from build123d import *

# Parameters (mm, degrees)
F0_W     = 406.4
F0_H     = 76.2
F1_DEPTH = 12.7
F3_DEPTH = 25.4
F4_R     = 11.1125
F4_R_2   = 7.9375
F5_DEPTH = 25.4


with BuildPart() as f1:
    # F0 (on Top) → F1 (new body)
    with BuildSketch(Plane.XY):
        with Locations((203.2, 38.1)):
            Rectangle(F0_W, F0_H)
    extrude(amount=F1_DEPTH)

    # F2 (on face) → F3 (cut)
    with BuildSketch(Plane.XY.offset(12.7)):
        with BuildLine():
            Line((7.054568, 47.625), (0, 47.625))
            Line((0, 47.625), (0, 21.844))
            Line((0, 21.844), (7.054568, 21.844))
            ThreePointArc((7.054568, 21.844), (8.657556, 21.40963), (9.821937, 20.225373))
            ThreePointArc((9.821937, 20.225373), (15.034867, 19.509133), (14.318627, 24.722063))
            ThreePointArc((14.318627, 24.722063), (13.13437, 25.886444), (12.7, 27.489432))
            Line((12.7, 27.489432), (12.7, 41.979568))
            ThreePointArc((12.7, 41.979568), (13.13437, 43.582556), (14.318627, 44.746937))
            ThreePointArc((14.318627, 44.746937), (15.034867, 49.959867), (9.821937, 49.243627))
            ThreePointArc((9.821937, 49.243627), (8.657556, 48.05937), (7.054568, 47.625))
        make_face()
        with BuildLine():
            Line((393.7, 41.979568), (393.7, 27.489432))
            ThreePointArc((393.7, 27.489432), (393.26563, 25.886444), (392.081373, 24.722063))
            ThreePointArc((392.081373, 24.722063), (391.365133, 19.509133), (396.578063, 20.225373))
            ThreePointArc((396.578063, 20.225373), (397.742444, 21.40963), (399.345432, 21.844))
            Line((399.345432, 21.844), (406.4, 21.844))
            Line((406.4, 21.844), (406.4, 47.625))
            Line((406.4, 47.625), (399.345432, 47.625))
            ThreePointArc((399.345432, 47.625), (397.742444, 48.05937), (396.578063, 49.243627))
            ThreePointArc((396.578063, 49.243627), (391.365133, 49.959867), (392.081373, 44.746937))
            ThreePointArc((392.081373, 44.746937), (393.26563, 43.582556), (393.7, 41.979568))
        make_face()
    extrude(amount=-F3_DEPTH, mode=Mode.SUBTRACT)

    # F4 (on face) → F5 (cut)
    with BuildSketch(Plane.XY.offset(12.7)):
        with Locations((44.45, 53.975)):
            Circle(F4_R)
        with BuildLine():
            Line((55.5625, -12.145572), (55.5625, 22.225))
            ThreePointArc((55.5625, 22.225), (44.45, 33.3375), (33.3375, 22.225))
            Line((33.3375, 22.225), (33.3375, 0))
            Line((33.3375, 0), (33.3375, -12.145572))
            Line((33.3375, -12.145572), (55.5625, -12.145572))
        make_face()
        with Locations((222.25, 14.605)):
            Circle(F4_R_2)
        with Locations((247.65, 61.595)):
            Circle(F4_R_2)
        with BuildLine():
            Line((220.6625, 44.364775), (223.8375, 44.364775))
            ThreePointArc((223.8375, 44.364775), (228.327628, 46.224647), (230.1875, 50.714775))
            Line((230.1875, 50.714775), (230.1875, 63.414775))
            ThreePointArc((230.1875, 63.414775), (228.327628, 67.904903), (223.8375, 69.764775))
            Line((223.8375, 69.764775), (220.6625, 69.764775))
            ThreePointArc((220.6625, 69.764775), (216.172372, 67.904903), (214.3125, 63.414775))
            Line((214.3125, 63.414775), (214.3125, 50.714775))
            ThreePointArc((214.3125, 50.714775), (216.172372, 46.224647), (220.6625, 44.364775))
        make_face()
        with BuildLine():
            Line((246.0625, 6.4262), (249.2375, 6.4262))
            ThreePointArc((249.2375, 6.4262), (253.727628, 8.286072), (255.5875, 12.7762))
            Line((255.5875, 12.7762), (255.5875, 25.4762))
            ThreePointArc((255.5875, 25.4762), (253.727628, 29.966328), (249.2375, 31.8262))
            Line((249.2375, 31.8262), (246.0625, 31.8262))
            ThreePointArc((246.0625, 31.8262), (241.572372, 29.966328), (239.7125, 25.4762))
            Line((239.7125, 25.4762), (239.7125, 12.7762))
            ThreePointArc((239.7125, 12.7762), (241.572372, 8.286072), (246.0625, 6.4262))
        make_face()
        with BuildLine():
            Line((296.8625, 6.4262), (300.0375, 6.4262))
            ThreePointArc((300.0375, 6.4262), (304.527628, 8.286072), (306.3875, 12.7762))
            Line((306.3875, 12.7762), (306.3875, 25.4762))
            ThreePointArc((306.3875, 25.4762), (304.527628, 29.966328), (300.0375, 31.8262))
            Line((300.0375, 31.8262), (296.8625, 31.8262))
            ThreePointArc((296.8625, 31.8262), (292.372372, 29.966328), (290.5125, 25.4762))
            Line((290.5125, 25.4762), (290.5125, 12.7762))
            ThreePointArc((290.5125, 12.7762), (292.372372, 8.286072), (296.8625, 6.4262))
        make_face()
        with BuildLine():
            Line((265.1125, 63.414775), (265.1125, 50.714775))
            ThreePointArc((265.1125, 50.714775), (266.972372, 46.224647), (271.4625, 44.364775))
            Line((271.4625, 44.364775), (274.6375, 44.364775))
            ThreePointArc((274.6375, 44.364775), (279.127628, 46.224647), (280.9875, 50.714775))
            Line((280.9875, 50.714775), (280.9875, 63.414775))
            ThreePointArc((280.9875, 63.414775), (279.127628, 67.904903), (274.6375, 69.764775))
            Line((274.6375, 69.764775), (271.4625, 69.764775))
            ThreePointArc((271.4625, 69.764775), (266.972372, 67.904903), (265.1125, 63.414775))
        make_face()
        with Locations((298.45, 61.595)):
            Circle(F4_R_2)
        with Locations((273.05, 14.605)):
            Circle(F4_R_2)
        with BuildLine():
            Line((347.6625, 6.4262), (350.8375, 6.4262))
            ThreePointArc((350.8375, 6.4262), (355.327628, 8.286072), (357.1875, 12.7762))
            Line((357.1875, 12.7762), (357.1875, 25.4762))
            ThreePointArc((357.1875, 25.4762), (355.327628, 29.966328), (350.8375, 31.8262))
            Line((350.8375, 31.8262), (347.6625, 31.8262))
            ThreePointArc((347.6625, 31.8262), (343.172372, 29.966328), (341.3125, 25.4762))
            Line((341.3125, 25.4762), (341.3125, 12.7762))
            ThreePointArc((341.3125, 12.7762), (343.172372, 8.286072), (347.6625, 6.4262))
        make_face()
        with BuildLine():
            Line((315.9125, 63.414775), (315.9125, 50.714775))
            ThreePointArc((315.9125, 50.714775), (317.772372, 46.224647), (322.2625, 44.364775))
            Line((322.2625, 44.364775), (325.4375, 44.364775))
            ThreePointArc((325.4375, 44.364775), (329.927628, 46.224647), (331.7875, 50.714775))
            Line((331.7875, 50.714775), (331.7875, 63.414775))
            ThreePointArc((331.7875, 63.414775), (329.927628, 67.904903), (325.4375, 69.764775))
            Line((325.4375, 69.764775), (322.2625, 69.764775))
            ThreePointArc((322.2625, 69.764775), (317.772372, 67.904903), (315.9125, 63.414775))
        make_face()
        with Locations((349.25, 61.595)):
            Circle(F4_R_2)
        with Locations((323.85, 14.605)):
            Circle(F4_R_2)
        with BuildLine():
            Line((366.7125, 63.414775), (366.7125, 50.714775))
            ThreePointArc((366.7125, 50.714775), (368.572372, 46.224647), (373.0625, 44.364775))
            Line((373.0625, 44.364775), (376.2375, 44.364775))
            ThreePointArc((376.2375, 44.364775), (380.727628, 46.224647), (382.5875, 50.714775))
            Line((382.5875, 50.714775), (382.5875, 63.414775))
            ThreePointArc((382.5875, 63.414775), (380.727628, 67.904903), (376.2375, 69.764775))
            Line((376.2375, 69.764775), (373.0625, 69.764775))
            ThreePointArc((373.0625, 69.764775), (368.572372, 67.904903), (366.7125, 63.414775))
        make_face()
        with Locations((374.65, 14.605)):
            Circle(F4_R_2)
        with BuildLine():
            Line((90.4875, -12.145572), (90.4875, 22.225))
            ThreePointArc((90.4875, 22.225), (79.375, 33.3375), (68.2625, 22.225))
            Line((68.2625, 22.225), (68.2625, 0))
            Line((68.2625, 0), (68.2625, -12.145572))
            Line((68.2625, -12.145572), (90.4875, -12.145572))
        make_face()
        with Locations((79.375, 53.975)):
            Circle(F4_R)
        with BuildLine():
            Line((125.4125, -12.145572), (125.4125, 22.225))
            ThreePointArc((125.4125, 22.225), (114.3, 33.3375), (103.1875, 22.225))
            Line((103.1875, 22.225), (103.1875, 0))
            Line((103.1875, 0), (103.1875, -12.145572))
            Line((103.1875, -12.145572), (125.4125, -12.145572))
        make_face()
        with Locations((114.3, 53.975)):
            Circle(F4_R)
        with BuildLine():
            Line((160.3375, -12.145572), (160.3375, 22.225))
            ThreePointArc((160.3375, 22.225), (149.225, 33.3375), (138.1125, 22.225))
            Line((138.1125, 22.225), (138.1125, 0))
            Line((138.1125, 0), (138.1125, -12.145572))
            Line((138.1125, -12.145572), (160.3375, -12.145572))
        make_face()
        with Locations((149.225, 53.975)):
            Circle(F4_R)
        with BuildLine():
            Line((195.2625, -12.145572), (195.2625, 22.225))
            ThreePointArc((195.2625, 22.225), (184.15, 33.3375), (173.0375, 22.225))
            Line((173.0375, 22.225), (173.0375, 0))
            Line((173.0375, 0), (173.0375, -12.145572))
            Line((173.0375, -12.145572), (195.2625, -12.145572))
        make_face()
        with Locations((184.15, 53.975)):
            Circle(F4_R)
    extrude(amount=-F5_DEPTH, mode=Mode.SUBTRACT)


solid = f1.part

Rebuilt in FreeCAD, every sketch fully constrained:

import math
import FreeCAD as App
import Part
import Sketcher
from FreeCAD import Vector
Q = App.Units.Quantity

doc = App.newDocument("Part")
body = doc.addObject("PartDesign::Body", "Body")

sketch1 = doc.addObject("Sketcher::SketchObject", "Sketch")
body.addObject(sketch1)
sketch1.AttachmentSupport = (doc.XY_Plane, [""])
sketch1.MapMode = "FlatFace"
sketch1.addGeometry([
    Part.LineSegment(Vector(0, 76, 0), Vector(0, 0, 0)),
    Part.LineSegment(Vector(0, 0, 0), Vector(406, 0, 0)),
    Part.LineSegment(Vector(406, 0, 0), Vector(406, 76, 0)),
    Part.LineSegment(Vector(406, 76, 0), Vector(0, 76, 0)),
], False)
sketch1.addConstraint([
    Sketcher.Constraint("Coincident", 0, 2, 1, 1),
    Sketcher.Constraint("Coincident", 1, 2, 2, 1),
    Sketcher.Constraint("Coincident", 2, 2, 3, 1),
    Sketcher.Constraint("Coincident", 3, 2, 0, 1),
    Sketcher.Constraint("Vertical", 0),
    Sketcher.Constraint("Horizontal", 1),
    Sketcher.Constraint("Vertical", 2),
    Sketcher.Constraint("Horizontal", 3),
    Sketcher.Constraint("Coincident", 0, 2, -1, 1),
    Sketcher.Constraint("DistanceX", 1, 1, 1, 2, Q("16 in")),
    Sketcher.Constraint("DistanceY", 0, 2, 0, 1, Q("3 in")),
])
pad1 = doc.addObject("PartDesign::Pad", "Pad")
body.addObject(pad1)
pad1.Profile = sketch1
pad1.Length = Q("0.5 in")

sketch2 = doc.addObject("Sketcher::SketchObject", "Sketch001")
body.addObject(sketch2)
sketch2.AttachmentSupport = (doc.XY_Plane, [""])
sketch2.MapMode = "FlatFace"
sketch2.AttachmentOffset = App.Placement(Vector(0, 0, 0.5 * 25.4), App.Rotation())
sketch2.addGeometry([
    Part.LineSegment(Vector(7.1, 47.6, 0), Vector(0, 47.6, 0)),
    Part.LineSegment(Vector(0, 47.6, 0), Vector(0, 21.8, 0)),
    Part.LineSegment(Vector(0, 21.8, 0), Vector(7.1, 21.8, 0)),
    Part.ArcOfCircle(Part.Circle(Vector(7.1, 18.7, 0), Vector(0, 0, 1), 3.2), math.radians(29), math.radians(90)),
    Part.ArcOfCircle(Part.Circle(Vector(12.7, 21.8, 0), Vector(0, 0, 1), 3.3), math.radians(-151), math.radians(61)),
    Part.ArcOfCircle(Part.Circle(Vector(15.9, 27.5, 0), Vector(0, 0, 1), 3.2), math.radians(-180), math.radians(-119)),
    Part.LineSegment(Vector(12.7, 27.5, 0), Vector(12.7, 42, 0)),
    Part.ArcOfCircle(Part.Circle(Vector(15.9, 42, 0), Vector(0, 0, 1), 3.2), math.radians(119), math.radians(180)),
    Part.ArcOfCircle(Part.Circle(Vector(12.7, 47.6, 0), Vector(0, 0, 1), 3.3), math.radians(-61), math.radians(151)),
    Part.ArcOfCircle(Part.Circle(Vector(7.1, 50.8, 0), Vector(0, 0, 1), 3.2), math.radians(-90), math.radians(-29)),
    Part.LineSegment(Vector(393.7, 42, 0), Vector(393.7, 27.5, 0)),
    Part.ArcOfCircle(Part.Circle(Vector(390.5, 27.5, 0), Vector(0, 0, 1), 3.2), math.radians(-61), math.radians(0)),
    Part.ArcOfCircle(Part.Circle(Vector(393.7, 21.8, 0), Vector(0, 0, 1), 3.3), math.radians(119), math.radians(331)),
    Part.ArcOfCircle(Part.Circle(Vector(399.3, 18.7, 0), Vector(0, 0, 1), 3.2), math.radians(90), math.radians(151)),
    Part.LineSegment(Vector(399.3, 21.8, 0), Vector(406.4, 21.8, 0)),
    Part.LineSegment(Vector(406.4, 21.8, 0), Vector(406.4, 47.6, 0)),
    Part.LineSegment(Vector(406.4, 47.6, 0), Vector(399.3, 47.6, 0)),
    Part.ArcOfCircle(Part.Circle(Vector(399.3, 50.8, 0), Vector(0, 0, 1), 3.2), math.radians(-151), math.radians(-90)),
    Part.ArcOfCircle(Part.Circle(Vector(393.7, 47.6, 0), Vector(0, 0, 1), 3.3), math.radians(29), math.radians(241)),
    Part.ArcOfCircle(Part.Circle(Vector(390.5, 42, 0), Vector(0, 0, 1), 3.2), math.radians(0), math.radians(61)),
], False)
sketch2.addConstraint([
    Sketcher.Constraint("Coincident", 0, 2, 1, 1),
    Sketcher.Constraint("Coincident", 1, 2, 2, 1),
    Sketcher.Constraint("Tangent", 2, 2, 3, 2),
    Sketcher.Constraint("Tangent", 3, 1, 4, 1),
    Sketcher.Constraint("Tangent", 4, 2, 5, 2),
    Sketcher.Constraint("Tangent", 5, 1, 6, 1),
    Sketcher.Constraint("Tangent", 6, 2, 7, 2),
    Sketcher.Constraint("Tangent", 7, 1, 8, 1),
    Sketcher.Constraint("Tangent", 8, 2, 9, 2),
    Sketcher.Constraint("Tangent", 9, 1, 0, 1),
    Sketcher.Constraint("Tangent", 10, 2, 11, 2),
    Sketcher.Constraint("Tangent", 11, 1, 12, 1),
    Sketcher.Constraint("Tangent", 12, 2, 13, 2),
    Sketcher.Constraint("Tangent", 13, 1, 14, 1),
    Sketcher.Constraint("Coincident", 14, 2, 15, 1),
    Sketcher.Constraint("Coincident", 15, 2, 16, 1),
    Sketcher.Constraint("Tangent", 16, 2, 17, 2),
    Sketcher.Constraint("Tangent", 17, 1, 18, 1),
    Sketcher.Constraint("Tangent", 18, 2, 19, 2),
    Sketcher.Constraint("Tangent", 19, 1, 10, 1),
    Sketcher.Constraint("Horizontal", 0),
    Sketcher.Constraint("Vertical", 1),
    Sketcher.Constraint("Horizontal", 2),
    Sketcher.Constraint("Vertical", 6),
    Sketcher.Constraint("Vertical", 10),
    Sketcher.Constraint("Horizontal", 14),
    Sketcher.Constraint("Vertical", 15),
    Sketcher.Constraint("Horizontal", 16),
    Sketcher.Constraint("Equal", 3, 5),
    Sketcher.Constraint("Equal", 5, 7),
    Sketcher.Constraint("Equal", 4, 8),
    Sketcher.Constraint("Equal", 7, 9),
    Sketcher.Constraint("Equal", 9, 11),
    Sketcher.Constraint("Equal", 8, 12),
    Sketcher.Constraint("Equal", 11, 13),
    Sketcher.Constraint("Equal", 13, 17),
    Sketcher.Constraint("Equal", 12, 18),
    Sketcher.Constraint("Equal", 17, 19),
    Sketcher.Constraint("PointOnObject", 0, 2, -2),
    Sketcher.Constraint("Horizontal", 5, 3, 11, 3),
    Sketcher.Constraint("Horizontal", 4, 3, 12, 3),
    Sketcher.Constraint("Horizontal", 3, 3, 13, 3),
    Sketcher.Constraint("Horizontal", 9, 3, 17, 3),
    Sketcher.Constraint("Horizontal", 8, 3, 18, 3),
    Sketcher.Constraint("Horizontal", 7, 3, 19, 3),
    Sketcher.Constraint("Horizontal", 18, 3, 0, 2),
    Sketcher.Constraint("Horizontal", 12, 3, 1, 2),
    Sketcher.Constraint("Vertical", 4, 3, 8, 3),
    Sketcher.Constraint("Vertical", 8, 3, 5, 1),
    Sketcher.Constraint("Equal", 2, 14),
    Sketcher.Constraint("Radius", 4, Q("0.13 in")),
    Sketcher.Constraint("DistanceY", -1, 1, 9, 3, Q("2.0000001 in")),
    Sketcher.Constraint("DistanceX", -1, 1, 14, 2, Q("16 in")),
    Sketcher.Constraint("Radius", 3, Q("0.1250001 in")),
    Sketcher.Constraint("DistanceX", 4, 3, 12, 3, Q("14.9999999 in")),
    Sketcher.Constraint("DistanceY", 1, 2, 1, 1, Q("1.015 in")),
])
pocket1 = doc.addObject("PartDesign::Pocket", "Pocket")
body.addObject(pocket1)
pocket1.Profile = sketch2
pocket1.Length = Q("1 in")

sketch3 = doc.addObject("Sketcher::SketchObject", "Sketch002")
body.addObject(sketch3)
sketch3.AttachmentSupport = (doc.XY_Plane, [""])
sketch3.MapMode = "FlatFace"
sketch3.AttachmentOffset = App.Placement(Vector(0, 0, 0.5 * 25.4), App.Rotation())
sketch3.addGeometry([
    Part.Circle(Vector(44.5, 54, 0), Vector(0, 0, 1), 11.1),
    Part.LineSegment(Vector(55.6, -12.1, 0), Vector(55.6, 22.2, 0)),
    Part.ArcOfCircle(Part.Circle(Vector(44.5, 22.2, 0), Vector(0, 0, 1), 11.1), math.radians(0), math.radians(180)),
    Part.LineSegment(Vector(33.3, 22.2, 0), Vector(33.3, -12.1, 0)),
    Part.LineSegment(Vector(33.3, -12.1, 0), Vector(55.6, -12.1, 0)),
    Part.Circle(Vector(222.2, 14.6, 0), Vector(0, 0, 1), 7.9),
    Part.Circle(Vector(247.7, 61.6, 0), Vector(0, 0, 1), 7.9),
    Part.LineSegment(Vector(220.7, 44.4, 0), Vector(223.8, 44.4, 0)),
    Part.ArcOfCircle(Part.Circle(Vector(223.8, 50.7, 0), Vector(0, 0, 1), 6.4), math.radians(-90), math.radians(0)),
    Part.LineSegment(Vector(230.2, 50.7, 0), Vector(230.2, 63.4, 0)),
    Part.ArcOfCircle(Part.Circle(Vector(223.8, 63.4, 0), Vector(0, 0, 1), 6.4), math.radians(0), math.radians(90)),
    Part.LineSegment(Vector(223.8, 69.8, 0), Vector(220.7, 69.8, 0)),
    Part.ArcOfCircle(Part.Circle(Vector(220.7, 63.4, 0), Vector(0, 0, 1), 6.4), math.radians(90), math.radians(180)),
    Part.LineSegment(Vector(214.3, 63.4, 0), Vector(214.3, 50.7, 0)),
    Part.ArcOfCircle(Part.Circle(Vector(220.7, 50.7, 0), Vector(0, 0, 1), 6.4), math.radians(-180), math.radians(-90)),
    Part.LineSegment(Vector(246.1, 6.4, 0), Vector(249.2, 6.4, 0)),
    Part.ArcOfCircle(Part.Circle(Vector(249.2, 12.8, 0), Vector(0, 0, 1), 6.4), math.radians(-90), math.radians(0)),
    Part.LineSegment(Vector(255.6, 12.8, 0), Vector(255.6, 25.5, 0)),
    Part.ArcOfCircle(Part.Circle(Vector(249.2, 25.5, 0), Vector(0, 0, 1), 6.4), math.radians(0), math.radians(90)),
    Part.LineSegment(Vector(249.2, 31.8, 0), Vector(246.1, 31.8, 0)),
    Part.ArcOfCircle(Part.Circle(Vector(246.1, 25.5, 0), Vector(0, 0, 1), 6.4), math.radians(90), math.radians(180)),
    Part.LineSegment(Vector(239.7, 25.5, 0), Vector(239.7, 12.8, 0)),
    Part.ArcOfCircle(Part.Circle(Vector(246.1, 12.8, 0), Vector(0, 0, 1), 6.4), math.radians(-180), math.radians(-90)),
    Part.LineSegment(Vector(296.9, 6.4, 0), Vector(300, 6.4, 0)),
    Part.ArcOfCircle(Part.Circle(Vector(300, 12.8, 0), Vector(0, 0, 1), 6.4), math.radians(-90), math.radians(0)),
    Part.LineSegment(Vector(306.4, 12.8, 0), Vector(306.4, 25.5, 0)),
    Part.ArcOfCircle(Part.Circle(Vector(300, 25.5, 0), Vector(0, 0, 1), 6.4), math.radians(0), math.radians(90)),
    Part.LineSegment(Vector(300, 31.8, 0), Vector(296.9, 31.8, 0)),
    Part.ArcOfCircle(Part.Circle(Vector(296.9, 25.5, 0), Vector(0, 0, 1), 6.4), math.radians(90), math.radians(180)),
    Part.LineSegment(Vector(290.5, 25.5, 0), Vector(290.5, 12.8, 0)),
    Part.ArcOfCircle(Part.Circle(Vector(296.9, 12.8, 0), Vector(0, 0, 1), 6.4), math.radians(-180), math.radians(-90)),
    Part.LineSegment(Vector(265.1, 63.4, 0), Vector(265.1, 50.7, 0)),
    Part.ArcOfCircle(Part.Circle(Vector(271.5, 50.7, 0), Vector(0, 0, 1), 6.4), math.radians(-180), math.radians(-90)),
    Part.LineSegment(Vector(271.5, 44.4, 0), Vector(274.6, 44.4, 0)),
    Part.ArcOfCircle(Part.Circle(Vector(274.6, 50.7, 0), Vector(0, 0, 1), 6.4), math.radians(-90), math.radians(0)),
    Part.LineSegment(Vector(281, 50.7, 0), Vector(281, 63.4, 0)),
    Part.ArcOfCircle(Part.Circle(Vector(274.6, 63.4, 0), Vector(0, 0, 1), 6.4), math.radians(0), math.radians(90)),
    Part.LineSegment(Vector(274.6, 69.8, 0), Vector(271.5, 69.8, 0)),
    Part.ArcOfCircle(Part.Circle(Vector(271.5, 63.4, 0), Vector(0, 0, 1), 6.4), math.radians(90), math.radians(180)),
    Part.Circle(Vector(298.4, 61.6, 0), Vector(0, 0, 1), 7.9),
    Part.Circle(Vector(273.1, 14.6, 0), Vector(0, 0, 1), 7.9),
    Part.LineSegment(Vector(347.7, 6.4, 0), Vector(350.8, 6.4, 0)),
    Part.ArcOfCircle(Part.Circle(Vector(350.8, 12.8, 0), Vector(0, 0, 1), 6.4), math.radians(-90), math.radians(0)),
    Part.LineSegment(Vector(357.2, 12.8, 0), Vector(357.2, 25.5, 0)),
    Part.ArcOfCircle(Part.Circle(Vector(350.8, 25.5, 0), Vector(0, 0, 1), 6.4), math.radians(0), math.radians(90)),
    Part.LineSegment(Vector(350.8, 31.8, 0), Vector(347.7, 31.8, 0)),
    Part.ArcOfCircle(Part.Circle(Vector(347.7, 25.5, 0), Vector(0, 0, 1), 6.4), math.radians(90), math.radians(180)),
    Part.LineSegment(Vector(341.3, 25.5, 0), Vector(341.3, 12.8, 0)),
    Part.ArcOfCircle(Part.Circle(Vector(347.7, 12.8, 0), Vector(0, 0, 1), 6.4), math.radians(-180), math.radians(-90)),
    Part.LineSegment(Vector(315.9, 63.4, 0), Vector(315.9, 50.7, 0)),
    Part.ArcOfCircle(Part.Circle(Vector(322.3, 50.7, 0), Vector(0, 0, 1), 6.4), math.radians(-180), math.radians(-90)),
    Part.LineSegment(Vector(322.3, 44.4, 0), Vector(325.4, 44.4, 0)),
    Part.ArcOfCircle(Part.Circle(Vector(325.4, 50.7, 0), Vector(0, 0, 1), 6.4), math.radians(-90), math.radians(0)),
    Part.LineSegment(Vector(331.8, 50.7, 0), Vector(331.8, 63.4, 0)),
    Part.ArcOfCircle(Part.Circle(Vector(325.4, 63.4, 0), Vector(0, 0, 1), 6.4), math.radians(0), math.radians(90)),
    Part.LineSegment(Vector(325.4, 69.8, 0), Vector(322.3, 69.8, 0)),
    Part.ArcOfCircle(Part.Circle(Vector(322.3, 63.4, 0), Vector(0, 0, 1), 6.4), math.radians(90), math.radians(180)),
    Part.Circle(Vector(349.2, 61.6, 0), Vector(0, 0, 1), 7.9),
    Part.Circle(Vector(323.9, 14.6, 0), Vector(0, 0, 1), 7.9),
    Part.LineSegment(Vector(366.7, 63.4, 0), Vector(366.7, 50.7, 0)),
    Part.ArcOfCircle(Part.Circle(Vector(373.1, 50.7, 0), Vector(0, 0, 1), 6.4), math.radians(-180), math.radians(-90)),
    Part.LineSegment(Vector(373.1, 44.4, 0), Vector(376.2, 44.4, 0)),
    Part.ArcOfCircle(Part.Circle(Vector(376.2, 50.7, 0), Vector(0, 0, 1), 6.4), math.radians(-90), math.radians(0)),
    Part.LineSegment(Vector(382.6, 50.7, 0), Vector(382.6, 63.4, 0)),
    Part.ArcOfCircle(Part.Circle(Vector(376.2, 63.4, 0), Vector(0, 0, 1), 6.4), math.radians(0), math.radians(90)),
    Part.LineSegment(Vector(376.2, 69.8, 0), Vector(373.1, 69.8, 0)),
    Part.ArcOfCircle(Part.Circle(Vector(373.1, 63.4, 0), Vector(0, 0, 1), 6.4), math.radians(90), math.radians(180)),
    Part.Circle(Vector(374.6, 14.6, 0), Vector(0, 0, 1), 7.9),
    Part.LineSegment(Vector(90.5, -12.1, 0), Vector(90.5, 22.2, 0)),
    Part.ArcOfCircle(Part.Circle(Vector(79.4, 22.2, 0), Vector(0, 0, 1), 11.1), math.radians(0), math.radians(180)),
    Part.LineSegment(Vector(68.3, 22.2, 0), Vector(68.3, -12.1, 0)),
    Part.LineSegment(Vector(68.3, -12.1, 0), Vector(90.5, -12.1, 0)),
    Part.Circle(Vector(79.4, 54, 0), Vector(0, 0, 1), 11.1),
    Part.LineSegment(Vector(125.4, -12.1, 0), Vector(125.4, 22.2, 0)),
    Part.ArcOfCircle(Part.Circle(Vector(114.3, 22.2, 0), Vector(0, 0, 1), 11.1), math.radians(0), math.radians(180)),
    Part.LineSegment(Vector(103.2, 22.2, 0), Vector(103.2, -12.1, 0)),
    Part.LineSegment(Vector(103.2, -12.1, 0), Vector(125.4, -12.1, 0)),
    Part.Circle(Vector(114.3, 54, 0), Vector(0, 0, 1), 11.1),
    Part.LineSegment(Vector(160.3, -12.1, 0), Vector(160.3, 22.2, 0)),
    Part.ArcOfCircle(Part.Circle(Vector(149.2, 22.2, 0), Vector(0, 0, 1), 11.1), math.radians(0), math.radians(180)),
    Part.LineSegment(Vector(138.1, 22.2, 0), Vector(138.1, -12.1, 0)),
    Part.LineSegment(Vector(138.1, -12.1, 0), Vector(160.3, -12.1, 0)),
    Part.Circle(Vector(149.2, 54, 0), Vector(0, 0, 1), 11.1),
    Part.LineSegment(Vector(195.3, -12.1, 0), Vector(195.3, 22.2, 0)),
    Part.ArcOfCircle(Part.Circle(Vector(184.2, 22.2, 0), Vector(0, 0, 1), 11.1), math.radians(0), math.radians(180)),
    Part.LineSegment(Vector(173, 22.2, 0), Vector(173, -12.1, 0)),
    Part.LineSegment(Vector(173, -12.1, 0), Vector(195.3, -12.1, 0)),
    Part.Circle(Vector(184.2, 54, 0), Vector(0, 0, 1), 11.1),
], False)
sketch3.addConstraint([
    Sketcher.Constraint("Tangent", 1, 2, 2, 1),
    Sketcher.Constraint("Tangent", 2, 2, 3, 1),
    Sketcher.Constraint("Coincident", 3, 2, 4, 1),
    Sketcher.Constraint("Coincident", 4, 2, 1, 1),
    Sketcher.Constraint("Tangent", 7, 2, 8, 1),
    Sketcher.Constraint("Tangent", 8, 2, 9, 1),
    Sketcher.Constraint("Tangent", 9, 2, 10, 1),
    Sketcher.Constraint("Tangent", 10, 2, 11, 1),
    Sketcher.Constraint("Tangent", 11, 2, 12, 1),
    Sketcher.Constraint("Tangent", 12, 2, 13, 1),
    Sketcher.Constraint("Tangent", 13, 2, 14, 1),
    Sketcher.Constraint("Tangent", 14, 2, 7, 1),
    Sketcher.Constraint("Tangent", 15, 2, 16, 1),
    Sketcher.Constraint("Tangent", 16, 2, 17, 1),
    Sketcher.Constraint("Tangent", 17, 2, 18, 1),
    Sketcher.Constraint("Tangent", 18, 2, 19, 1),
    Sketcher.Constraint("Tangent", 19, 2, 20, 1),
    Sketcher.Constraint("Tangent", 20, 2, 21, 1),
    Sketcher.Constraint("Tangent", 21, 2, 22, 1),
    Sketcher.Constraint("Tangent", 22, 2, 15, 1),
    Sketcher.Constraint("Tangent", 23, 2, 24, 1),
    Sketcher.Constraint("Tangent", 24, 2, 25, 1),
    Sketcher.Constraint("Tangent", 25, 2, 26, 1),
    Sketcher.Constraint("Tangent", 26, 2, 27, 1),
    Sketcher.Constraint("Tangent", 27, 2, 28, 1),
    Sketcher.Constraint("Tangent", 28, 2, 29, 1),
    Sketcher.Constraint("Tangent", 29, 2, 30, 1),
    Sketcher.Constraint("Tangent", 30, 2, 23, 1),
    Sketcher.Constraint("Tangent", 31, 2, 32, 1),
    Sketcher.Constraint("Tangent", 32, 2, 33, 1),
    Sketcher.Constraint("Tangent", 33, 2, 34, 1),
    Sketcher.Constraint("Tangent", 34, 2, 35, 1),
    Sketcher.Constraint("Tangent", 35, 2, 36, 1),
    Sketcher.Constraint("Tangent", 36, 2, 37, 1),
    Sketcher.Constraint("Tangent", 37, 2, 38, 1),
    Sketcher.Constraint("Tangent", 38, 2, 31, 1),
    Sketcher.Constraint("Tangent", 41, 2, 42, 1),
    Sketcher.Constraint("Tangent", 42, 2, 43, 1),
    Sketcher.Constraint("Tangent", 43, 2, 44, 1),
    Sketcher.Constraint("Tangent", 44, 2, 45, 1),
    Sketcher.Constraint("Tangent", 45, 2, 46, 1),
    Sketcher.Constraint("Tangent", 46, 2, 47, 1),
    Sketcher.Constraint("Tangent", 47, 2, 48, 1),
    Sketcher.Constraint("Tangent", 48, 2, 41, 1),
    Sketcher.Constraint("Tangent", 49, 2, 50, 1),
    Sketcher.Constraint("Tangent", 50, 2, 51, 1),
    Sketcher.Constraint("Tangent", 51, 2, 52, 1),
    Sketcher.Constraint("Tangent", 52, 2, 53, 1),
    Sketcher.Constraint("Tangent", 53, 2, 54, 1),
    Sketcher.Constraint("Tangent", 54, 2, 55, 1),
    Sketcher.Constraint("Tangent", 55, 2, 56, 1),
    Sketcher.Constraint("Tangent", 56, 2, 49, 1),
    Sketcher.Constraint("Tangent", 59, 2, 60, 1),
    Sketcher.Constraint("Tangent", 60, 2, 61, 1),
    Sketcher.Constraint("Tangent", 61, 2, 62, 1),
    Sketcher.Constraint("Tangent", 62, 2, 63, 1),
    Sketcher.Constraint("Tangent", 63, 2, 64, 1),
    Sketcher.Constraint("Tangent", 64, 2, 65, 1),
    Sketcher.Constraint("Tangent", 65, 2, 66, 1),
    Sketcher.Constraint("Tangent", 66, 2, 59, 1),
    Sketcher.Constraint("Tangent", 68, 2, 69, 1),
    Sketcher.Constraint("Tangent", 69, 2, 70, 1),
    Sketcher.Constraint("Coincident", 70, 2, 71, 1),
    Sketcher.Constraint("Coincident", 71, 2, 68, 1),
    Sketcher.Constraint("Tangent", 73, 2, 74, 1),
    Sketcher.Constraint("Tangent", 74, 2, 75, 1),
    Sketcher.Constraint("Coincident", 75, 2, 76, 1),
    Sketcher.Constraint("Coincident", 76, 2, 73, 1),
    Sketcher.Constraint("Tangent", 78, 2, 79, 1),
    Sketcher.Constraint("Tangent", 79, 2, 80, 1),
    Sketcher.Constraint("Coincident", 80, 2, 81, 1),
    Sketcher.Constraint("Coincident", 81, 2, 78, 1),
    Sketcher.Constraint("Tangent", 83, 2, 84, 1),
    Sketcher.Constraint("Tangent", 84, 2, 85, 1),
    Sketcher.Constraint("Coincident", 85, 2, 86, 1),
    Sketcher.Constraint("Coincident", 86, 2, 83, 1),
    Sketcher.Constraint("Vertical", 1),
    Sketcher.Constraint("Vertical", 3),
    Sketcher.Constraint("Horizontal", 4),
    Sketcher.Constraint("Horizontal", 7),
    Sketcher.Constraint("Vertical", 9),
    Sketcher.Constraint("Horizontal", 11),
    Sketcher.Constraint("Vertical", 13),
    Sketcher.Constraint("Horizontal", 15),
    Sketcher.Constraint("Vertical", 17),
    Sketcher.Constraint("Horizontal", 19),
    Sketcher.Constraint("Vertical", 21),
    Sketcher.Constraint("Horizontal", 23),
    Sketcher.Constraint("Vertical", 25),
    Sketcher.Constraint("Horizontal", 27),
    Sketcher.Constraint("Vertical", 29),
    Sketcher.Constraint("Vertical", 31),
    Sketcher.Constraint("Horizontal", 33),
    Sketcher.Constraint("Vertical", 35),
    Sketcher.Constraint("Horizontal", 37),
    Sketcher.Constraint("Horizontal", 41),
    Sketcher.Constraint("Vertical", 43),
    Sketcher.Constraint("Horizontal", 45),
    Sketcher.Constraint("Vertical", 47),
    Sketcher.Constraint("Vertical", 49),
    Sketcher.Constraint("Horizontal", 51),
    Sketcher.Constraint("Vertical", 53),
    Sketcher.Constraint("Horizontal", 55),
    Sketcher.Constraint("Vertical", 59),
    Sketcher.Constraint("Horizontal", 61),
    Sketcher.Constraint("Vertical", 63),
    Sketcher.Constraint("Horizontal", 65),
    Sketcher.Constraint("Vertical", 68),
    Sketcher.Constraint("Vertical", 70),
    Sketcher.Constraint("Horizontal", 71),
    Sketcher.Constraint("Vertical", 73),
    Sketcher.Constraint("Vertical", 75),
    Sketcher.Constraint("Horizontal", 76),
    Sketcher.Constraint("Vertical", 78),
    Sketcher.Constraint("Vertical", 80),
    Sketcher.Constraint("Horizontal", 81),
    Sketcher.Constraint("Vertical", 83),
    Sketcher.Constraint("Vertical", 85),
    Sketcher.Constraint("Horizontal", 86),
    Sketcher.Constraint("Equal", 0, 2),
    Sketcher.Constraint("Equal", 5, 6),
    Sketcher.Constraint("Equal", 8, 10),
    Sketcher.Constraint("Equal", 10, 12),
    Sketcher.Constraint("Equal", 12, 14),
    Sketcher.Constraint("Equal", 14, 16),
    Sketcher.Constraint("Equal", 16, 18),
    Sketcher.Constraint("Equal", 18, 20),
    Sketcher.Constraint("Equal", 20, 22),
    Sketcher.Constraint("Equal", 22, 24),
    Sketcher.Constraint("Equal", 24, 26),
    Sketcher.Constraint("Equal", 26, 28),
    Sketcher.Constraint("Equal", 28, 30),
    Sketcher.Constraint("Equal", 30, 32),
    Sketcher.Constraint("Equal", 32, 34),
    Sketcher.Constraint("Equal", 34, 36),
    Sketcher.Constraint("Equal", 36, 38),
    Sketcher.Constraint("Equal", 6, 39),
    Sketcher.Constraint("Equal", 39, 40),
    Sketcher.Constraint("Equal", 38, 42),
    Sketcher.Constraint("Equal", 42, 44),
    Sketcher.Constraint("Equal", 44, 46),
    Sketcher.Constraint("Equal", 46, 48),
    Sketcher.Constraint("Equal", 48, 50),
    Sketcher.Constraint("Equal", 50, 52),
    Sketcher.Constraint("Equal", 52, 54),
    Sketcher.Constraint("Equal", 54, 56),
    Sketcher.Constraint("Equal", 40, 57),
    Sketcher.Constraint("Equal", 57, 58),
    Sketcher.Constraint("Equal", 56, 60),
    Sketcher.Constraint("Equal", 60, 62),
    Sketcher.Constraint("Equal", 62, 64),
    Sketcher.Constraint("Equal", 64, 66),
    Sketcher.Constraint("Equal", 58, 67),
    Sketcher.Constraint("Equal", 2, 69),
    Sketcher.Constraint("Equal", 69, 72),
    Sketcher.Constraint("Equal", 72, 74),
    Sketcher.Constraint("Equal", 74, 77),
    Sketcher.Constraint("Equal", 77, 79),
    Sketcher.Constraint("Equal", 79, 82),
    Sketcher.Constraint("Equal", 82, 84),
    Sketcher.Constraint("Equal", 84, 87),
    Sketcher.Constraint("Horizontal", 22, 3, 24, 3),
    Sketcher.Constraint("Horizontal", 20, 3, 26, 3),
    Sketcher.Constraint("Horizontal", 14, 3, 32, 3),
    Sketcher.Constraint("Horizontal", 12, 3, 36, 3),
    Sketcher.Constraint("Horizontal", 6, 3, 39, 3),
    Sketcher.Constraint("Horizontal", 5, 3, 40, 3),
    Sketcher.Constraint("Horizontal", 30, 3, 42, 3),
    Sketcher.Constraint("Horizontal", 28, 3, 44, 3),
    Sketcher.Constraint("Horizontal", 34, 3, 50, 3),
    Sketcher.Constraint("Horizontal", 38, 3, 54, 3),
    Sketcher.Constraint("Horizontal", 39, 3, 57, 3),
    Sketcher.Constraint("Horizontal", 40, 3, 58, 3),
    Sketcher.Constraint("Horizontal", 52, 3, 60, 3),
    Sketcher.Constraint("Horizontal", 56, 3, 64, 3),
    Sketcher.Constraint("Horizontal", 58, 3, 67, 3),
    Sketcher.Constraint("Horizontal", 2, 3, 69, 3),
    Sketcher.Constraint("Horizontal", 0, 3, 72, 3),
    Sketcher.Constraint("Horizontal", 69, 3, 74, 3),
    Sketcher.Constraint("Horizontal", 72, 3, 77, 3),
    Sketcher.Constraint("Horizontal", 74, 3, 79, 3),
    Sketcher.Constraint("Horizontal", 77, 3, 82, 3),
    Sketcher.Constraint("Horizontal", 79, 3, 84, 3),
    Sketcher.Constraint("Horizontal", 82, 3, 87, 3),
    Sketcher.Constraint("Horizontal", 4, 2, 70, 2),
    Sketcher.Constraint("Horizontal", 71, 2, 75, 2),
    Sketcher.Constraint("Horizontal", 76, 2, 80, 2),
    Sketcher.Constraint("Horizontal", 81, 2, 85, 2),
    Sketcher.Constraint("Vertical", 0, 3, 2, 3),
    Sketcher.Constraint("Vertical", 69, 3, 72, 3),
    Sketcher.Constraint("Vertical", 74, 3, 77, 3),
    Sketcher.Constraint("Vertical", 79, 3, 82, 3),
    Sketcher.Constraint("Vertical", 84, 3, 87, 3),
    Sketcher.Constraint("Equal", 11, 15),
    Sketcher.Constraint("Equal", 19, 23),
    Sketcher.Constraint("Equal", 27, 33),
    Sketcher.Constraint("Equal", 37, 41),
    Sketcher.Constraint("Equal", 45, 51),
    Sketcher.Constraint("Equal", 55, 61),
    Sketcher.Constraint("Equal", 13, 17),
    Sketcher.Constraint("Radius", 8, Q("0.25 in")),
    Sketcher.Constraint("Diameter", 0, Q("0.875 in")),
    Sketcher.Constraint("Diameter", 5, Q("0.625 in")),
    Sketcher.Constraint("DistanceY", 9, 1, 9, 2, Q("0.5 in")),
    Sketcher.Constraint("DistanceX", -1, 1, 74, 3, Q("4.5 in")),
    Sketcher.Constraint("DistanceX", 7, 1, 7, 2, Q("0.125 in")),
    Sketcher.Constraint("DistanceX", -1, 1, 0, 3, Q("1.75 in")),
    Sketcher.Constraint("DistanceX", -1, 1, 5, 3, Q("8.75 in")),
    Sketcher.Constraint("DistanceX", -1, 1, 6, 3, Q("9.75 in")),
    Sketcher.Constraint("DistanceX", -1, 1, 39, 3, Q("11.75 in")),
    Sketcher.Constraint("DistanceX", -1, 1, 40, 3, Q("10.75 in")),
    Sketcher.Constraint("DistanceX", -1, 1, 57, 3, Q("13.75 in")),
    Sketcher.Constraint("DistanceX", -1, 1, 58, 3, Q("12.75 in")),
    Sketcher.Constraint("DistanceX", -1, 1, 67, 3, Q("14.75 in")),
    Sketcher.Constraint("DistanceX", -1, 1, 84, 3, Q("7.25 in")),
    Sketcher.Constraint("DistanceY", -1, 1, 0, 3, Q("2.125 in")),
    Sketcher.Constraint("DistanceY", -1, 1, 2, 3, Q("0.875 in")),
    Sketcher.Constraint("DistanceY", -1, 1, 5, 3, Q("0.575 in")),
    Sketcher.Constraint("DistanceY", -1, 1, 6, 3, Q("2.425 in")),
    Sketcher.Constraint("DistanceX", -1, 1, 8, 3, Q("8.8125 in")),
    Sketcher.Constraint("DistanceX", -1, 1, 16, 3, Q("9.8125 in")),
    Sketcher.Constraint("DistanceY", -1, 1, 16, 3, Q("0.503 in")),
    Sketcher.Constraint("DistanceX", -1, 1, 24, 3, Q("11.8125 in")),
    Sketcher.Constraint("DistanceX", -1, 1, 32, 3, Q("10.6875 in")),
    Sketcher.Constraint("DistanceX", -1, 1, 42, 3, Q("13.8125 in")),
    Sketcher.Constraint("DistanceX", -1, 1, 50, 3, Q("12.6875 in")),
    Sketcher.Constraint("DistanceX", -1, 1, 60, 3, Q("14.6875 in")),
    Sketcher.Constraint("DistanceX", -1, 1, 69, 3, Q("3.125 in")),
    Sketcher.Constraint("DistanceX", -1, 1, 79, 3, Q("5.875 in")),
    Sketcher.Constraint("DistanceY", 1, 1, 1, 2, Q("34.370572 mm")),
    Sketcher.Constraint("DistanceY", -1, 1, 8, 3, Q("50.714775 mm")),
])
pocket2 = doc.addObject("PartDesign::Pocket", "Pocket001")
body.addObject(pocket2)
pocket2.Profile = sketch3
pocket2.Length = Q("1 in")

doc.recompute()
